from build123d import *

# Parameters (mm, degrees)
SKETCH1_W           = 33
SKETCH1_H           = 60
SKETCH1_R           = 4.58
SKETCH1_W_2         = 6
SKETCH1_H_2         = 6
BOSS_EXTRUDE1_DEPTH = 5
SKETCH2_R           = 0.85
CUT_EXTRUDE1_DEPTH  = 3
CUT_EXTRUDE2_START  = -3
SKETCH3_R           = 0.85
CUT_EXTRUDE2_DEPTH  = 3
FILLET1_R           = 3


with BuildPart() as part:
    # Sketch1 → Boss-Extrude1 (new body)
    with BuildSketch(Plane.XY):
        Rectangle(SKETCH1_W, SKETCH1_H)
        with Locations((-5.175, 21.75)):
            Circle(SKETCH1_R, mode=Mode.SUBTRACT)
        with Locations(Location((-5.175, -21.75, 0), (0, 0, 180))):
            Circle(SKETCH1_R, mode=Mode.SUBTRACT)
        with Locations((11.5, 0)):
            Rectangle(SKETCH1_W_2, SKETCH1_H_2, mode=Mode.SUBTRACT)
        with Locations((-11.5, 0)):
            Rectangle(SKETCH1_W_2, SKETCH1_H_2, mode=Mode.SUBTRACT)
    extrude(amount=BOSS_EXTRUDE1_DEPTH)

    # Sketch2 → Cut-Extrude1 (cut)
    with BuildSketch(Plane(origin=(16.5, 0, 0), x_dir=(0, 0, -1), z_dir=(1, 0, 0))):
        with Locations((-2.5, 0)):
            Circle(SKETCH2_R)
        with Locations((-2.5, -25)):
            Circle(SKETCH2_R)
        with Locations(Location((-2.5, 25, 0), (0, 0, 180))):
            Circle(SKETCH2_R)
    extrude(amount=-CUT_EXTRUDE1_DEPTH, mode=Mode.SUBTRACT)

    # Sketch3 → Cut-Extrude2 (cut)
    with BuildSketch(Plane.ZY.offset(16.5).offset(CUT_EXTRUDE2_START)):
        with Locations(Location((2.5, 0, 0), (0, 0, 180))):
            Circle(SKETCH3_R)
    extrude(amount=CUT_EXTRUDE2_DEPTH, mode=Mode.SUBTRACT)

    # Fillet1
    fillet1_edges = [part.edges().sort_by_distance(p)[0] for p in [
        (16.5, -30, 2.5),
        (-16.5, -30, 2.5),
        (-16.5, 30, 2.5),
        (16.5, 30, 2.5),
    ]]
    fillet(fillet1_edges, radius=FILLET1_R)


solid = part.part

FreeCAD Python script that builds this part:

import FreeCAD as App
import Part
import Sketcher

V = App.Vector


def edges_at(feature, points):
    """Names of the edges that pass closest to the given points."""
    edges = feature.Shape.Edges
    near = lambda p: min(range(len(edges)), key=lambda i: edges[i].distToShape(Part.Vertex(*p))[0])
    return sorted({f"Edge{near(p) + 1}" for p in points})


def add_polygon(sketch, points):
    """Adds a closed chain of lines whose ends are joined by coincident constraints."""
    first, n = sketch.GeometryCount, len(points)
    for a, b in zip(points, points[1:] + points[:1]):
        sketch.addGeometry(Part.LineSegment(App.Vector(*a, 0), App.Vector(*b, 0)), False)
    for i in range(n):
        sketch.addConstraint(Sketcher.Constraint("Coincident", first + i, 2, first + (i + 1) % n, 1))

doc = App.newDocument("Part")
body = doc.addObject("PartDesign::Body", "Body")

# Sketch on XY plane
sketch1 = body.newObject("Sketcher::SketchObject", "Sketch")
sketch1.AttachmentSupport = (doc.getObject("XY_Plane"), [""])
sketch1.MapMode = "FlatFace"
add_polygon(sketch1, [(-16.5, 30), (-16.5, -30), (16.5, -30), (16.5, 30)])  # lines 0-3
sketch1.addGeometry(Part.Circle(V(-5.2, -21.8, 0), V(0, 0, 1), 4.6), False)  # 4
add_polygon(sketch1, [(-8.5, -3), (-14.5, -3), (-14.5, 3), (-8.5, 3)])  # lines 5-8
sketch1.addGeometry(Part.Circle(V(-5.2, 21.8, 0), V(0, 0, 1), 4.6), False)  # 9
add_polygon(sketch1, [(14.5, -3), (8.5, -3), (8.5, 3), (14.5, 3)])  # lines 10-13
sketch1.addConstraint(Sketcher.Constraint("Vertical", 0))
sketch1.addConstraint(Sketcher.Constraint("Horizontal", 1))
sketch1.addConstraint(Sketcher.Constraint("Vertical", 2))
sketch1.addConstraint(Sketcher.Constraint("Horizontal", 3))
sketch1.addConstraint(Sketcher.Constraint("Horizontal", 5))
sketch1.addConstraint(Sketcher.Constraint("Vertical", 6))
sketch1.addConstraint(Sketcher.Constraint("Horizontal", 7))
sketch1.addConstraint(Sketcher.Constraint("Vertical", 8))
sketch1.addConstraint(Sketcher.Constraint("Horizontal", 10))
sketch1.addConstraint(Sketcher.Constraint("Vertical", 11))
sketch1.addConstraint(Sketcher.Constraint("Horizontal", 12))
sketch1.addConstraint(Sketcher.Constraint("Vertical", 13))
sketch1.addConstraint(Sketcher.Constraint("Equal", 4, 9))
sketch1.addConstraint(Sketcher.Constraint("Symmetric", 0, 2, 2, 2, -1, 1))
sketch1.addConstraint(Sketcher.Constraint("Symmetric", 7, 2, 10, 2, -1, 1))
sketch1.addConstraint(Sketcher.Constraint("Symmetric", 5, 2, 12, 2, -1, 1))
sketch1.addConstraint(Sketcher.Constraint("Symmetric", 4, 3, 9, 3, -1))
sketch1.addConstraint(Sketcher.Constraint("Horizontal", 8, 2, 10, 2))
sketch1.addConstraint(Sketcher.Constraint("Equal", 12, 6))
sketch1.addConstraint(Sketcher.Constraint("Diameter", 4, 9.16))
sketch1.addConstraint(Sketcher.Constraint("DistanceX", 1, 1, 1, 2, 33.0))
sketch1.addConstraint(Sketcher.Constraint("DistanceX", 5, 2, 5, 1, 6.0))
sketch1.addConstraint(Sketcher.Constraint("DistanceY", 0, 2, 0, 1, 60.0))
sketch1.addConstraint(Sketcher.Constraint("DistanceX", 0, 2, 5, 2, 2.0))
sketch1.addConstraint(Sketcher.Constraint("DistanceY", 4, 3, 9, 3, 43.5))
sketch1.addConstraint(Sketcher.Constraint("DistanceX", 4, 3, -1, 1, 5.175))
pad1 = body.newObject("PartDesign::Pad", "Pad")
pad1.Profile = sketch1
pad1.Length = 5

# Sketch on YZ plane
sketch2 = body.newObject("Sketcher::SketchObject", "Sketch001")
sketch2.AttachmentSupport = (doc.getObject("YZ_Plane"), [""])
sketch2.MapMode = "FlatFace"
sketch2.AttachmentOffset = App.Placement(V(0, 0, 16.5), App.Rotation())
sketch2.addGeometry(Part.Circle(V(0, 2.5, 0), V(0, 0, 1), 0.8), False)
sketch2.addGeometry(Part.Circle(V(-25, 2.5, 0), V(0, 0, 1), 0.8), False)
sketch2.addGeometry(Part.Circle(V(25, 2.5, 0), V(0, 0, 1), 0.8), False)
sketch2.addConstraint(Sketcher.Constraint("Equal", 0, 1))
sketch2.addConstraint(Sketcher.Constraint("Equal", 1, 2))
sketch2.addConstraint(Sketcher.Constraint("Symmetric", 1, 3, 2, 3, -2))
sketch2.addConstraint(Sketcher.Constraint("PointOnObject", 0, 3, -2))
sketch2.addConstraint(Sketcher.Constraint("Horizontal", 0, 3, 1, 3))
sketch2.addConstraint(Sketcher.Constraint("Diameter", 0, 1.7))
sketch2.addConstraint(Sketcher.Constraint("DistanceX", 1, 3, -1, 1, 25.0))
sketch2.addConstraint(Sketcher.Constraint("DistanceY", -1, 1, 0, 3, 2.5))
pocket1 = body.newObject("PartDesign::Pocket", "Pocket")
pocket1.Profile = sketch2
pocket1.Length = 3

# Sketch on YZ plane
sketch3 = body.newObject("Sketcher::SketchObject", "Sketch002")
sketch3.AttachmentSupport = (doc.getObject("YZ_Plane"), [""])
sketch3.MapMode = "FlatFace"
sketch3.AttachmentOffset = App.Placement(V(0, 0, -13.5), App.Rotation())
sketch3.addGeometry(Part.Circle(V(0, 2.5, 0), V(0, 0, 1), 0.8), False)
sketch3.addConstraint(Sketcher.Constraint("PointOnObject", 0, 3, -2))
sketch3.addConstraint(Sketcher.Constraint("Diameter", 0, 1.7))
sketch3.addConstraint(Sketcher.Constraint("DistanceY", -1, 1, 0, 3, 2.5))
pocket2 = body.newObject("PartDesign::Pocket", "Pocket001")
pocket2.Profile = sketch3
pocket2.Length = 3
doc.recompute()

fillet = body.newObject("PartDesign::Fillet", "Fillet")
fillet.Base = (pocket2, edges_at(pocket2, [
    (16.5, -30, 2.5),
    (-16.5, -30, 2.5),
    (-16.5, 30, 2.5),
    (16.5, 30, 2.5),
]))
fillet.Radius = 3

doc.recompute()
